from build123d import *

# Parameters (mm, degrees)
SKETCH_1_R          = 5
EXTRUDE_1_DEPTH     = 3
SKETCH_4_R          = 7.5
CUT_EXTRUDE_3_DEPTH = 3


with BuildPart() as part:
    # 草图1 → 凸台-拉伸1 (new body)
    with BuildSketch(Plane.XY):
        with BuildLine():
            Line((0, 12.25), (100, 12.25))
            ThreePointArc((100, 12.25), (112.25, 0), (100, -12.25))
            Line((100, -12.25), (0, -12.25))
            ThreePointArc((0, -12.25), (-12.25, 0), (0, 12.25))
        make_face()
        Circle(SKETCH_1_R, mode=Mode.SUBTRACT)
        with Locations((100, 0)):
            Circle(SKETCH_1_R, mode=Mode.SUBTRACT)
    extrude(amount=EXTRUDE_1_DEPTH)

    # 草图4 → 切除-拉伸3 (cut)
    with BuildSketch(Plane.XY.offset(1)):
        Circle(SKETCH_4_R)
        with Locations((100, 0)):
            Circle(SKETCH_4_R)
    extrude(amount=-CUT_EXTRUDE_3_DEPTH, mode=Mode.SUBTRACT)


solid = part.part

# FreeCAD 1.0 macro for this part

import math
import FreeCAD as App
import Part
import Sketcher
from FreeCAD import Vector

doc = App.newDocument("Part")
body = doc.addObject("PartDesign::Body", "Body")

# Sketch on XY plane
sketch1 = body.newObject("Sketcher::SketchObject", "Sketch")
sketch1.AttachmentSupport = (doc.getObject("XY_Plane"), [""])
sketch1.MapMode = "FlatFace"
sketch1.addGeometry([
    Part.LineSegment(Vector(100, 12, 0), Vector(0, 12, 0)),  # 0
    Part.ArcOfCircle(Part.Circle(Vector(0, 0, 0), Vector(0, 0, 1), 12), math.radians(90), math.radians(270)),  # 1
    Part.LineSegment(Vector(0, -12, 0), Vector(100, -12, 0)),  # 2
    Part.ArcOfCircle(Part.Circle(Vector(100, 0, 0), Vector(0, 0, 1), 12), math.radians(-90), math.radians(90)),  # 3
    Part.Circle(Vector(100, 0, 0), Vector(0, 0, 1), 5),  # 4
    Part.Circle(Vector(0, 0, 0), Vector(0, 0, 1), 5),  # 5
], False)
sketch1.addConstraint([
    Sketcher.Constraint("Tangent", 0, 2, 1, 1),
    Sketcher.Constraint("Tangent", 1, 2, 2, 1),
    Sketcher.Constraint("Tangent", 2, 2, 3, 1),
    Sketcher.Constraint("Tangent", 3, 2, 0, 1),
    Sketcher.Constraint("Horizontal", 0),
    Sketcher.Constraint("Horizontal", 2),
    Sketcher.Constraint("Coincident", 1, 3, -1, 1),
    Sketcher.Constraint("Coincident", 5, 3, -1, 1),
    Sketcher.Constraint("Coincident", 4, 3, 3, 3),
    Sketcher.Constraint("Equal", 4, 5),
    Sketcher.Constraint("Diameter", 4, 10.0),
    Sketcher.Constraint("DistanceX", 0, 2, 0, 1, 100.0),
    Sketcher.Constraint("Radius", 1, 12.25),
])
pad1 = body.newObject("PartDesign::Pad", "Pad")
pad1.Profile = sketch1
pad1.Length = 3

# Sketch on XY plane
sketch2 = body.newObject("Sketcher::SketchObject", "Sketch001")
sketch2.AttachmentSupport = (doc.getObject("XY_Plane"), [""])
sketch2.MapMode = "FlatFace"
sketch2.AttachmentOffset = App.Placement(Vector(0, 0, 1), App.Rotation())
sketch2.addGeometry([
    Part.Circle(Vector(0, 0, 0), Vector(0, 0, 1), 8),
    Part.Circle(Vector(100, 0, 0), Vector(0, 0, 1), 8),
], False)
sketch2.addConstraint([
    Sketcher.Constraint("Coincident", 0, 3, -1, 1),
    Sketcher.Constraint("Equal", 0, 1),
    Sketcher.Constraint("PointOnObject", 1, 3, -1),
    Sketcher.Constraint("Diameter", 0, 15.0),
    Sketcher.Constraint("DistanceX", -1, 1, 1, 3, 100.0),
])
pocket1 = body.newObject("PartDesign::Pocket", "Pocket")
pocket1.Profile = sketch2
pocket1.Length = 3

doc.recompute()
